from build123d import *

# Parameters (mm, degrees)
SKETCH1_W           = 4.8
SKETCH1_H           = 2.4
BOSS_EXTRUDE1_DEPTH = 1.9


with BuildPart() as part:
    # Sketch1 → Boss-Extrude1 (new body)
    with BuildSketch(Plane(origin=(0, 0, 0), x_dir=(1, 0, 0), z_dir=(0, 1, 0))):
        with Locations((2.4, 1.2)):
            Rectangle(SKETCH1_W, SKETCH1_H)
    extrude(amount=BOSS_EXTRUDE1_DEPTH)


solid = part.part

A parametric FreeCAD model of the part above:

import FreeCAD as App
import Part
import Sketcher

V = App.Vector
Q = App.Units.Quantity

doc = App.newDocument("Part")
body = doc.addObject("PartDesign::Body", "Body")

# Sketch on XZ plane
sketch1 = body.newObject("Sketcher::SketchObject", "Sketch")
sketch1.AttachmentSupport = (doc.getObject("XZ_Plane"), [""])
sketch1.MapMode = "FlatFace"
sketch1.addGeometry(Part.LineSegment(V(0, -2.4, 0), V(0, 0, 0)), False)
sketch1.addGeometry(Part.LineSegment(V(0, 0, 0), V(4.8, 0, 0)), False)
sketch1.addGeometry(Part.LineSegment(V(4.8, 0, 0), V(4.8, -2.4, 0)), False)
sketch1.addGeometry(Part.LineSegment(V(4.8, -2.4, 0), V(0, -2.4, 0)), False)
sketch1.addConstraint(Sketcher.Constraint("Coincident", 0, 2, 1, 1))
sketch1.addConstraint(Sketcher.Constraint("Coincident", 1, 2, 2, 1))
sketch1.addConstraint(Sketcher.Constraint("Coincident", 2, 2, 3, 1))
sketch1.addConstraint(Sketcher.Constraint("Coincident", 3, 2, 0, 1))
sketch1.addConstraint(Sketcher.Constraint("Vertical", 0))
sketch1.addConstraint(Sketcher.Constraint("Horizontal", 1))
sketch1.addConstraint(Sketcher.Constraint("Vertical", 2))
sketch1.addConstraint(Sketcher.Constraint("Horizontal", 3))
sketch1.addConstraint(Sketcher.Constraint("Coincident", 0, 2, -1, 1))
sketch1.addConstraint(Sketcher.Constraint("DistanceX", 1, 1, 1, 2, Q("4.8 mm")))
sketch1.addConstraint(Sketcher.Constraint("DistanceY", 0, 1, 0, 2, Q("2.4 mm")))
pad1 = body.newObject("PartDesign::Pad", "Pad")
pad1.Profile = sketch1
pad1.Length = 1.9
pad1.Reversed = True

doc.recompute()
